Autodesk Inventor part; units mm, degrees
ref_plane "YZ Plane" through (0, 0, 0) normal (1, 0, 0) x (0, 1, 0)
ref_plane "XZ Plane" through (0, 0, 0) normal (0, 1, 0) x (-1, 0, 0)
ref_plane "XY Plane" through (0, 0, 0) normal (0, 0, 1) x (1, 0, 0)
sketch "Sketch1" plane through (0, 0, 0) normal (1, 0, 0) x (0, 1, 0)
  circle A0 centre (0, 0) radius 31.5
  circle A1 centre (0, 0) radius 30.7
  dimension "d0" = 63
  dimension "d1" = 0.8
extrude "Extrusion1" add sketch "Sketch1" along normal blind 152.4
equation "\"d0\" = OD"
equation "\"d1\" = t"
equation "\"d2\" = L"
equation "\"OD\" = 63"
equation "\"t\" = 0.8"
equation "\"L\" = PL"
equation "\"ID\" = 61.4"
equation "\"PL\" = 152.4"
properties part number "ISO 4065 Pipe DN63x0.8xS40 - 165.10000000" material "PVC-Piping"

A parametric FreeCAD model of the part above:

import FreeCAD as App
import Part
import Sketcher

doc = App.newDocument("Part")
body = doc.addObject("PartDesign::Body", "Body")

sketch1 = body.newObject("Sketcher::SketchObject", "Sketch")
sketch1.AttachmentSupport = (doc.getObject("YZ_Plane"), [""])
sketch1.MapMode = "FlatFace"
sketch1.addGeometry(Part.Circle(App.Vector(0, 0, 0), App.Vector(0, 0, 1), 31.5), False)
sketch1.addGeometry(Part.Circle(App.Vector(0, 0, 0), App.Vector(0, 0, 1), 30.7), False)
sketch1.addConstraint(Sketcher.Constraint("Coincident", 0, 3, -1, 1))
sketch1.addConstraint(Sketcher.Constraint("Coincident", 1, 3, -1, 1))
sketch1.addConstraint(Sketcher.Constraint("Diameter", 0, 63.0))
sketch1.addConstraint(Sketcher.Constraint("Diameter", 1, 61.4))
pad1 = body.newObject("PartDesign::Pad", "Pad")
pad1.Profile = sketch1
pad1.Length = 152.4

doc.recompute()
